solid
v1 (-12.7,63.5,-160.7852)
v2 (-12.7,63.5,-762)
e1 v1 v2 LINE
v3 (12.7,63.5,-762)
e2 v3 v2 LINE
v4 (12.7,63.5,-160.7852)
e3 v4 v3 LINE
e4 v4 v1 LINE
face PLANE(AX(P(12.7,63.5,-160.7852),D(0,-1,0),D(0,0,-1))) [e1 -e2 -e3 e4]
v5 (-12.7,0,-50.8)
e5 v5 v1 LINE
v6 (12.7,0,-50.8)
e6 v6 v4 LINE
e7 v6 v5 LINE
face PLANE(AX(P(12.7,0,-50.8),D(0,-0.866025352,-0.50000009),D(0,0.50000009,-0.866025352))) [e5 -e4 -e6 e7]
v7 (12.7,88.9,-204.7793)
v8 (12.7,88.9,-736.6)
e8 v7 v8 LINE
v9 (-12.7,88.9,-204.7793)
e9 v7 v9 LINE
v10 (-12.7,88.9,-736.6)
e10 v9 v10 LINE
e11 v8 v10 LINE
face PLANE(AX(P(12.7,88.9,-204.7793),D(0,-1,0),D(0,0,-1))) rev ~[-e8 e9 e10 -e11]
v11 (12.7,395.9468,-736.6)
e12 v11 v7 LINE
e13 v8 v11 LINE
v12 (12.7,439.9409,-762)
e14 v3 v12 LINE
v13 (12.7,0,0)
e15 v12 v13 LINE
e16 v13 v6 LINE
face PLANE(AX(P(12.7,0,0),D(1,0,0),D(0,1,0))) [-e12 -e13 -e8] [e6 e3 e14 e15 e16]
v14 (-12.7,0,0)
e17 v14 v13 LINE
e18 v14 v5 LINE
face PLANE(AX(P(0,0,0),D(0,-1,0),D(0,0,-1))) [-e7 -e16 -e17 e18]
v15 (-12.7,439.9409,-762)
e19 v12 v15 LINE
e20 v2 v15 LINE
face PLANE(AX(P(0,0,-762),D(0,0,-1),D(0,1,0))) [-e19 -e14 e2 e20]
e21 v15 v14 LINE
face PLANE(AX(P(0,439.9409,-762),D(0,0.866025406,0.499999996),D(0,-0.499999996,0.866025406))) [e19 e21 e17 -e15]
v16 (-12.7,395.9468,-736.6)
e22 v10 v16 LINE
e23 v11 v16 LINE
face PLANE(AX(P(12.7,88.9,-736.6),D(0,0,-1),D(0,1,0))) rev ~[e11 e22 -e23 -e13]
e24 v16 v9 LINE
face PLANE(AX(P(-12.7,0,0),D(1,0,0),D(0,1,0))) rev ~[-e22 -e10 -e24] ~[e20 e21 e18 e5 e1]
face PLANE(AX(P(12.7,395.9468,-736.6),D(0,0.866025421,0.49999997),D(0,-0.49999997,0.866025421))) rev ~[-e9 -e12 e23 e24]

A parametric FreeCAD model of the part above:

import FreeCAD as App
import Part
import Sketcher
Q = App.Units.Quantity

doc = App.newDocument("Part")
body = doc.addObject("PartDesign::Body", "Body")

# Sketch on YZ plane
sketch1 = body.newObject("Sketcher::SketchObject", "Sketch")
sketch1.AttachmentSupport = (doc.getObject("YZ_Plane"), [""])
sketch1.MapMode = "FlatFace"
sketch1.addGeometry(Part.LineSegment(App.Vector(439.9409, -762, 0), App.Vector(0, 0, 0)), False)
sketch1.addGeometry(Part.LineSegment(App.Vector(0, 0, 0), App.Vector(0, -762, 0)), False)
sketch1.addGeometry(Part.LineSegment(App.Vector(0, -762, 0), App.Vector(439.9409, -762, 0)), False)
sketch1.addConstraint(Sketcher.Constraint("Coincident", 0, 2, 1, 1))
sketch1.addConstraint(Sketcher.Constraint("Coincident", 1, 2, 2, 1))
sketch1.addConstraint(Sketcher.Constraint("Coincident", 2, 2, 0, 1))
sketch1.addConstraint(Sketcher.Constraint("Vertical", 1))
sketch1.addConstraint(Sketcher.Constraint("Horizontal", 2))
sketch1.addConstraint(Sketcher.Constraint("Coincident", 0, 2, -1, 1))
sketch1.addConstraint(Sketcher.Constraint("DistanceY", 1, 2, 1, 1, Q("30 in")))
sketch1.addConstraint(Sketcher.Constraint("Angle", 0, Q("120 deg")))
pad1 = body.newObject("PartDesign::Pad", "Pad")
pad1.Profile = sketch1
pad1.Length = Q("1 in")
pad1.Midplane = True

# Sketch on YZ plane
sketch2 = body.newObject("Sketcher::SketchObject", "Sketch001")
sketch2.AttachmentSupport = (doc.getObject("YZ_Plane"), [""])
sketch2.MapMode = "FlatFace"
sketch2.AttachmentOffset = App.Placement(App.Vector(0, 0, 0.5 * 25.4), App.Rotation())
sketch2.addGeometry(Part.LineSegment(App.Vector(63.5, -762, 0), App.Vector(63.5, -160.7852, 0)), False)
sketch2.addGeometry(Part.LineSegment(App.Vector(63.5, -160.7852, 0), App.Vector(0, -50.8, 0)), False)
sketch2.addGeometry(Part.LineSegment(App.Vector(0, -50.8, 0), App.Vector(0, -762, 0)), False)
sketch2.addGeometry(Part.LineSegment(App.Vector(0, -762, 0), App.Vector(63.5, -762, 0)), False)
sketch2.addGeometry(Part.LineSegment(App.Vector(395.9468, -736.6, 0), App.Vector(88.9, -204.7793, 0)), False)
sketch2.addGeometry(Part.LineSegment(App.Vector(88.9, -204.7793, 0), App.Vector(88.9, -736.6, 0)), False)
sketch2.addGeometry(Part.LineSegment(App.Vector(88.9, -736.6, 0), App.Vector(395.9468, -736.6, 0)), False)
sketch2.addConstraint(Sketcher.Constraint("Coincident", 0, 2, 1, 1))
sketch2.addConstraint(Sketcher.Constraint("Coincident", 1, 2, 2, 1))
sketch2.addConstraint(Sketcher.Constraint("Coincident", 2, 2, 3, 1))
sketch2.addConstraint(Sketcher.Constraint("Coincident", 3, 2, 0, 1))
sketch2.addConstraint(Sketcher.Constraint("Coincident", 4, 2, 5, 1))
sketch2.addConstraint(Sketcher.Constraint("Coincident", 5, 2, 6, 1))
sketch2.addConstraint(Sketcher.Constraint("Coincident", 6, 2, 4, 1))
sketch2.addConstraint(Sketcher.Constraint("Vertical", 0))
sketch2.addConstraint(Sketcher.Constraint("Vertical", 2))
sketch2.addConstraint(Sketcher.Constraint("Horizontal", 3))
sketch2.addConstraint(Sketcher.Constraint("Vertical", 5))
sketch2.addConstraint(Sketcher.Constraint("Horizontal", 6))
sketch2.addConstraint(Sketcher.Constraint("PointOnObject", 1, 2, -2))
sketch2.addConstraint(Sketcher.Constraint("Parallel", 1, 4))
sketch2.addConstraint(Sketcher.Constraint("DistanceX", 0, 2, 4, 2, Q("1 in")))
sketch2.addConstraint(Sketcher.Constraint("DistanceY", 3, 2, 5, 2, Q("1 in")))
sketch2.addConstraint(Sketcher.Constraint("DistanceY", 2, 2, 2, 1, Q("28 in")))
sketch2.addConstraint(Sketcher.Constraint("Distance", 1, Q("5 in")))
sketch2.addConstraint(Sketcher.Constraint("DistanceX", 3, 1, 3, 2, Q("2.5 in")))
sketch2.addConstraint(Sketcher.Constraint("DistanceY", 1, 2, -1, 1, Q("2 in")))
sketch2.addConstraint(Sketcher.Constraint("DistanceX", 6, 1, 6, 2, 307.0468))
pocket1 = body.newObject("PartDesign::Pocket", "Pocket")
pocket1.Profile = sketch2
pocket1.Type = "ThroughAll"

doc.recompute()
